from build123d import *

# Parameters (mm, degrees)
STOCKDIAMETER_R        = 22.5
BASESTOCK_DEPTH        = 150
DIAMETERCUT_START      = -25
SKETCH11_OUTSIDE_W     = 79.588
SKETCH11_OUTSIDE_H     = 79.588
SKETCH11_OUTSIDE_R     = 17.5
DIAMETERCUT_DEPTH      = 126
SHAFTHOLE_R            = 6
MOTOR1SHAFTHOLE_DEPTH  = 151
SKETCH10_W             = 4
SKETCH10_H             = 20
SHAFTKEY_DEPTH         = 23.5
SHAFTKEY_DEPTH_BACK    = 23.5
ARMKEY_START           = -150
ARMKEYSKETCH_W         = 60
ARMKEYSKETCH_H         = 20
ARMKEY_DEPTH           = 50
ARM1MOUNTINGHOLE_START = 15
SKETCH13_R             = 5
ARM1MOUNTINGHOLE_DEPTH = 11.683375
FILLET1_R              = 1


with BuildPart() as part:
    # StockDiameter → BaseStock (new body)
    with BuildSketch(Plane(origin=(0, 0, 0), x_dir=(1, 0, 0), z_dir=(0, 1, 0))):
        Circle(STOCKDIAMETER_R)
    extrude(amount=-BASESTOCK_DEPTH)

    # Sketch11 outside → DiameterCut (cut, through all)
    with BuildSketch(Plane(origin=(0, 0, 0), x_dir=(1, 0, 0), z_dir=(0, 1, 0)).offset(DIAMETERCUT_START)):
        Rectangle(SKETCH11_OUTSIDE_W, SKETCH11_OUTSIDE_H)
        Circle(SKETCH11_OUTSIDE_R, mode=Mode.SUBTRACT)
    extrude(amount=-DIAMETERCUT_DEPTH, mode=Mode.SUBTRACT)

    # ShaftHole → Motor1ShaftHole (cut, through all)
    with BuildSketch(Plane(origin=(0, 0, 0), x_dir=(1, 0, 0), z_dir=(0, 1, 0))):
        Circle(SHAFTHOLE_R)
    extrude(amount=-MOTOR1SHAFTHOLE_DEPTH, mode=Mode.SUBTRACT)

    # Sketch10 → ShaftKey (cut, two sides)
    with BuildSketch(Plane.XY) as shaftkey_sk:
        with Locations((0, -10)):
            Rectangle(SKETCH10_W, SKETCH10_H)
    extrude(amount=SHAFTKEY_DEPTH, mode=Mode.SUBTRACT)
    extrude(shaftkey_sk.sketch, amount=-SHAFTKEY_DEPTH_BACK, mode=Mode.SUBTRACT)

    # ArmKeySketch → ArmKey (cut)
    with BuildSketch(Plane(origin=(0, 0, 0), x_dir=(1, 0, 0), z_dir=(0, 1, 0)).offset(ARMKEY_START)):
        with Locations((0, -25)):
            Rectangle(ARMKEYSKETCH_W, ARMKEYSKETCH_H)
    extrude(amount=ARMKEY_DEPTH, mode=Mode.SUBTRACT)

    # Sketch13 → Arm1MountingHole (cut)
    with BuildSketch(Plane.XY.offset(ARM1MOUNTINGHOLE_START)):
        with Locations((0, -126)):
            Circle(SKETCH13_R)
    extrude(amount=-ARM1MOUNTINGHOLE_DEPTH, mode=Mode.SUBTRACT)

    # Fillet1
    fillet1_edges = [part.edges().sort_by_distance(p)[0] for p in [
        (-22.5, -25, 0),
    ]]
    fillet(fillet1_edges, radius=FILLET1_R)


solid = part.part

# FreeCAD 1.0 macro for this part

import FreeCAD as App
import Part
import Sketcher


def edges_at(feature, points):
    """Names of the edges that pass closest to the given points."""
    edges = feature.Shape.Edges
    near = lambda p: min(range(len(edges)), key=lambda i: edges[i].distToShape(Part.Vertex(*p))[0])
    return sorted({f"Edge{near(p) + 1}" for p in points})


def add_polygon(sketch, points):
    """Adds a closed chain of lines whose ends are joined by coincident constraints."""
    first, n = sketch.GeometryCount, len(points)
    for a, b in zip(points, points[1:] + points[:1]):
        sketch.addGeometry(Part.LineSegment(App.Vector(*a, 0), App.Vector(*b, 0)), False)
    for i in range(n):
        sketch.addConstraint(Sketcher.Constraint("Coincident", first + i, 2, first + (i + 1) % n, 1))

doc = App.newDocument("Part")
body = doc.addObject("PartDesign::Body", "Body")

sketch1 = doc.addObject("Sketcher::SketchObject", "Sketch")
body.addObject(sketch1)
sketch1.AttachmentSupport = (doc.XZ_Plane, [""])
sketch1.MapMode = "FlatFace"
sketch1.addGeometry(Part.Circle(App.Vector(0, 0, 0), App.Vector(0, 0, 1), 22), False)
sketch1.addConstraint([
    Sketcher.Constraint("Coincident", 0, 3, -1, 1),
    Sketcher.Constraint("Diameter", 0, 45.0),
])
pad1 = doc.addObject("PartDesign::Pad", "Pad")
body.addObject(pad1)
pad1.Profile = sketch1
pad1.Length = 150

sketch2 = doc.addObject("Sketcher::SketchObject", "Sketch001")
body.addObject(sketch2)
sketch2.AttachmentSupport = (doc.XZ_Plane, [""])
sketch2.MapMode = "FlatFace"
sketch2.AttachmentOffset = App.Placement(App.Vector(0, 0, 25), App.Rotation())
add_polygon(sketch2, [(-40, -40), (-40, 40), (40, 40), (40, -40)])
sketch2.addGeometry(Part.Circle(App.Vector(0, 0, 0), App.Vector(0, 0, 1), 18), False)
sketch2.addConstraint([
    Sketcher.Constraint("Vertical", 0),
    Sketcher.Constraint("Horizontal", 1),
    Sketcher.Constraint("Vertical", 2),
    Sketcher.Constraint("Horizontal", 3),
    Sketcher.Constraint("Coincident", 4, 3, -1, 1),
    Sketcher.Constraint("Symmetric", 0, 2, 2, 2, -1, 1),
    Sketcher.Constraint("Equal", 3, 0),
    Sketcher.Constraint("Diameter", 4, 35.0),
    Sketcher.Constraint("DistanceX", 1, 1, 1, 2, 79.588),
])
pocket1 = doc.addObject("PartDesign::Pocket", "Pocket")
body.addObject(pocket1)
pocket1.Profile = sketch2
pocket1.Type = "ThroughAll"
pocket1.Reversed = True

sketch3 = doc.addObject("Sketcher::SketchObject", "Sketch002")
body.addObject(sketch3)
sketch3.AttachmentSupport = (doc.XZ_Plane, [""])
sketch3.MapMode = "FlatFace"
sketch3.addGeometry(Part.Circle(App.Vector(0, 0, 0), App.Vector(0, 0, 1), 6), False)
sketch3.addConstraint([
    Sketcher.Constraint("Coincident", 0, 3, -1, 1),
    Sketcher.Constraint("Diameter", 0, 12.0),
])
pocket2 = doc.addObject("PartDesign::Pocket", "Pocket001")
body.addObject(pocket2)
pocket2.Profile = sketch3
pocket2.Type = "ThroughAll"
pocket2.Reversed = True

sketch4 = doc.addObject("Sketcher::SketchObject", "Sketch003")
body.addObject(sketch4)
sketch4.AttachmentSupport = (doc.XY_Plane, [""])
sketch4.MapMode = "FlatFace"
add_polygon(sketch4, [(-2, 0), (-2, -20), (2, -20), (2, 0)])
sketch4.addConstraint([
    Sketcher.Constraint("Vertical", 0),
    Sketcher.Constraint("Horizontal", 1),
    Sketcher.Constraint("Vertical", 2),
    Sketcher.Constraint("Horizontal", 3),
    Sketcher.Constraint("Symmetric", 2, 2, 3, 2, -1, 1),
    Sketcher.Constraint("DistanceX", 1, 1, 1, 2, 4.0),
    Sketcher.Constraint("DistanceY", 0, 2, 0, 1, 20.0),
])
pocket3 = doc.addObject("PartDesign::Pocket", "Pocket002")
body.addObject(pocket3)
pocket3.Profile = sketch4
pocket3.Type = "ThroughAll"
pocket3.Midplane = True

sketch5 = doc.addObject("Sketcher::SketchObject", "Sketch004")
body.addObject(sketch5)
sketch5.AttachmentSupport = (doc.XZ_Plane, [""])
sketch5.MapMode = "FlatFace"
sketch5.AttachmentOffset = App.Placement(App.Vector(0, 0, 150), App.Rotation())
add_polygon(sketch5, [(-30, 15), (-30, 35), (30, 35), (30, 15)])
sketch5.addConstraint([
    Sketcher.Constraint("Vertical", 0),
    Sketcher.Constraint("Horizontal", 1),
    Sketcher.Constraint("Vertical", 2),
    Sketcher.Constraint("Horizontal", 3),
    Sketcher.Constraint("DistanceX", 1, 1, 1, 2, 60.0),
    Sketcher.Constraint("DistanceY", 0, 1, 0, 2, 20.0),
    Sketcher.Constraint("DistanceX", 0, 2, -1, 1, 30.0),
    Sketcher.Constraint("DistanceY", -1, 1, 0, 2, 35.0),
])
pocket4 = doc.addObject("PartDesign::Pocket", "Pocket003")
body.addObject(pocket4)
pocket4.Profile = sketch5
pocket4.Length = 50

sketch6 = doc.addObject("Sketcher::SketchObject", "Sketch005")
body.addObject(sketch6)
sketch6.AttachmentSupport = (doc.XY_Plane, [""])
sketch6.MapMode = "FlatFace"
sketch6.AttachmentOffset = App.Placement(App.Vector(0, 0, 15), App.Rotation())
sketch6.addGeometry(Part.Circle(App.Vector(0, -126, 0), App.Vector(0, 0, 1), 5), False)
sketch6.addConstraint([
    Sketcher.Constraint("PointOnObject", 0, 3, -2),
    Sketcher.Constraint("Diameter", 0, 10.0),
    Sketcher.Constraint("DistanceY", 0, 3, -1, 1, 126.0),
])
pocket5 = doc.addObject("PartDesign::Pocket", "Pocket004")
body.addObject(pocket5)
pocket5.Profile = sketch6
pocket5.Length = 11.683375
doc.recompute()

fillet = doc.addObject("PartDesign::Fillet", "Fillet")
body.addObject(fillet)
fillet.Base = (pocket5, edges_at(pocket5, [(-22.5, -25, 0)]))
fillet.Radius = 1

doc.recompute()
